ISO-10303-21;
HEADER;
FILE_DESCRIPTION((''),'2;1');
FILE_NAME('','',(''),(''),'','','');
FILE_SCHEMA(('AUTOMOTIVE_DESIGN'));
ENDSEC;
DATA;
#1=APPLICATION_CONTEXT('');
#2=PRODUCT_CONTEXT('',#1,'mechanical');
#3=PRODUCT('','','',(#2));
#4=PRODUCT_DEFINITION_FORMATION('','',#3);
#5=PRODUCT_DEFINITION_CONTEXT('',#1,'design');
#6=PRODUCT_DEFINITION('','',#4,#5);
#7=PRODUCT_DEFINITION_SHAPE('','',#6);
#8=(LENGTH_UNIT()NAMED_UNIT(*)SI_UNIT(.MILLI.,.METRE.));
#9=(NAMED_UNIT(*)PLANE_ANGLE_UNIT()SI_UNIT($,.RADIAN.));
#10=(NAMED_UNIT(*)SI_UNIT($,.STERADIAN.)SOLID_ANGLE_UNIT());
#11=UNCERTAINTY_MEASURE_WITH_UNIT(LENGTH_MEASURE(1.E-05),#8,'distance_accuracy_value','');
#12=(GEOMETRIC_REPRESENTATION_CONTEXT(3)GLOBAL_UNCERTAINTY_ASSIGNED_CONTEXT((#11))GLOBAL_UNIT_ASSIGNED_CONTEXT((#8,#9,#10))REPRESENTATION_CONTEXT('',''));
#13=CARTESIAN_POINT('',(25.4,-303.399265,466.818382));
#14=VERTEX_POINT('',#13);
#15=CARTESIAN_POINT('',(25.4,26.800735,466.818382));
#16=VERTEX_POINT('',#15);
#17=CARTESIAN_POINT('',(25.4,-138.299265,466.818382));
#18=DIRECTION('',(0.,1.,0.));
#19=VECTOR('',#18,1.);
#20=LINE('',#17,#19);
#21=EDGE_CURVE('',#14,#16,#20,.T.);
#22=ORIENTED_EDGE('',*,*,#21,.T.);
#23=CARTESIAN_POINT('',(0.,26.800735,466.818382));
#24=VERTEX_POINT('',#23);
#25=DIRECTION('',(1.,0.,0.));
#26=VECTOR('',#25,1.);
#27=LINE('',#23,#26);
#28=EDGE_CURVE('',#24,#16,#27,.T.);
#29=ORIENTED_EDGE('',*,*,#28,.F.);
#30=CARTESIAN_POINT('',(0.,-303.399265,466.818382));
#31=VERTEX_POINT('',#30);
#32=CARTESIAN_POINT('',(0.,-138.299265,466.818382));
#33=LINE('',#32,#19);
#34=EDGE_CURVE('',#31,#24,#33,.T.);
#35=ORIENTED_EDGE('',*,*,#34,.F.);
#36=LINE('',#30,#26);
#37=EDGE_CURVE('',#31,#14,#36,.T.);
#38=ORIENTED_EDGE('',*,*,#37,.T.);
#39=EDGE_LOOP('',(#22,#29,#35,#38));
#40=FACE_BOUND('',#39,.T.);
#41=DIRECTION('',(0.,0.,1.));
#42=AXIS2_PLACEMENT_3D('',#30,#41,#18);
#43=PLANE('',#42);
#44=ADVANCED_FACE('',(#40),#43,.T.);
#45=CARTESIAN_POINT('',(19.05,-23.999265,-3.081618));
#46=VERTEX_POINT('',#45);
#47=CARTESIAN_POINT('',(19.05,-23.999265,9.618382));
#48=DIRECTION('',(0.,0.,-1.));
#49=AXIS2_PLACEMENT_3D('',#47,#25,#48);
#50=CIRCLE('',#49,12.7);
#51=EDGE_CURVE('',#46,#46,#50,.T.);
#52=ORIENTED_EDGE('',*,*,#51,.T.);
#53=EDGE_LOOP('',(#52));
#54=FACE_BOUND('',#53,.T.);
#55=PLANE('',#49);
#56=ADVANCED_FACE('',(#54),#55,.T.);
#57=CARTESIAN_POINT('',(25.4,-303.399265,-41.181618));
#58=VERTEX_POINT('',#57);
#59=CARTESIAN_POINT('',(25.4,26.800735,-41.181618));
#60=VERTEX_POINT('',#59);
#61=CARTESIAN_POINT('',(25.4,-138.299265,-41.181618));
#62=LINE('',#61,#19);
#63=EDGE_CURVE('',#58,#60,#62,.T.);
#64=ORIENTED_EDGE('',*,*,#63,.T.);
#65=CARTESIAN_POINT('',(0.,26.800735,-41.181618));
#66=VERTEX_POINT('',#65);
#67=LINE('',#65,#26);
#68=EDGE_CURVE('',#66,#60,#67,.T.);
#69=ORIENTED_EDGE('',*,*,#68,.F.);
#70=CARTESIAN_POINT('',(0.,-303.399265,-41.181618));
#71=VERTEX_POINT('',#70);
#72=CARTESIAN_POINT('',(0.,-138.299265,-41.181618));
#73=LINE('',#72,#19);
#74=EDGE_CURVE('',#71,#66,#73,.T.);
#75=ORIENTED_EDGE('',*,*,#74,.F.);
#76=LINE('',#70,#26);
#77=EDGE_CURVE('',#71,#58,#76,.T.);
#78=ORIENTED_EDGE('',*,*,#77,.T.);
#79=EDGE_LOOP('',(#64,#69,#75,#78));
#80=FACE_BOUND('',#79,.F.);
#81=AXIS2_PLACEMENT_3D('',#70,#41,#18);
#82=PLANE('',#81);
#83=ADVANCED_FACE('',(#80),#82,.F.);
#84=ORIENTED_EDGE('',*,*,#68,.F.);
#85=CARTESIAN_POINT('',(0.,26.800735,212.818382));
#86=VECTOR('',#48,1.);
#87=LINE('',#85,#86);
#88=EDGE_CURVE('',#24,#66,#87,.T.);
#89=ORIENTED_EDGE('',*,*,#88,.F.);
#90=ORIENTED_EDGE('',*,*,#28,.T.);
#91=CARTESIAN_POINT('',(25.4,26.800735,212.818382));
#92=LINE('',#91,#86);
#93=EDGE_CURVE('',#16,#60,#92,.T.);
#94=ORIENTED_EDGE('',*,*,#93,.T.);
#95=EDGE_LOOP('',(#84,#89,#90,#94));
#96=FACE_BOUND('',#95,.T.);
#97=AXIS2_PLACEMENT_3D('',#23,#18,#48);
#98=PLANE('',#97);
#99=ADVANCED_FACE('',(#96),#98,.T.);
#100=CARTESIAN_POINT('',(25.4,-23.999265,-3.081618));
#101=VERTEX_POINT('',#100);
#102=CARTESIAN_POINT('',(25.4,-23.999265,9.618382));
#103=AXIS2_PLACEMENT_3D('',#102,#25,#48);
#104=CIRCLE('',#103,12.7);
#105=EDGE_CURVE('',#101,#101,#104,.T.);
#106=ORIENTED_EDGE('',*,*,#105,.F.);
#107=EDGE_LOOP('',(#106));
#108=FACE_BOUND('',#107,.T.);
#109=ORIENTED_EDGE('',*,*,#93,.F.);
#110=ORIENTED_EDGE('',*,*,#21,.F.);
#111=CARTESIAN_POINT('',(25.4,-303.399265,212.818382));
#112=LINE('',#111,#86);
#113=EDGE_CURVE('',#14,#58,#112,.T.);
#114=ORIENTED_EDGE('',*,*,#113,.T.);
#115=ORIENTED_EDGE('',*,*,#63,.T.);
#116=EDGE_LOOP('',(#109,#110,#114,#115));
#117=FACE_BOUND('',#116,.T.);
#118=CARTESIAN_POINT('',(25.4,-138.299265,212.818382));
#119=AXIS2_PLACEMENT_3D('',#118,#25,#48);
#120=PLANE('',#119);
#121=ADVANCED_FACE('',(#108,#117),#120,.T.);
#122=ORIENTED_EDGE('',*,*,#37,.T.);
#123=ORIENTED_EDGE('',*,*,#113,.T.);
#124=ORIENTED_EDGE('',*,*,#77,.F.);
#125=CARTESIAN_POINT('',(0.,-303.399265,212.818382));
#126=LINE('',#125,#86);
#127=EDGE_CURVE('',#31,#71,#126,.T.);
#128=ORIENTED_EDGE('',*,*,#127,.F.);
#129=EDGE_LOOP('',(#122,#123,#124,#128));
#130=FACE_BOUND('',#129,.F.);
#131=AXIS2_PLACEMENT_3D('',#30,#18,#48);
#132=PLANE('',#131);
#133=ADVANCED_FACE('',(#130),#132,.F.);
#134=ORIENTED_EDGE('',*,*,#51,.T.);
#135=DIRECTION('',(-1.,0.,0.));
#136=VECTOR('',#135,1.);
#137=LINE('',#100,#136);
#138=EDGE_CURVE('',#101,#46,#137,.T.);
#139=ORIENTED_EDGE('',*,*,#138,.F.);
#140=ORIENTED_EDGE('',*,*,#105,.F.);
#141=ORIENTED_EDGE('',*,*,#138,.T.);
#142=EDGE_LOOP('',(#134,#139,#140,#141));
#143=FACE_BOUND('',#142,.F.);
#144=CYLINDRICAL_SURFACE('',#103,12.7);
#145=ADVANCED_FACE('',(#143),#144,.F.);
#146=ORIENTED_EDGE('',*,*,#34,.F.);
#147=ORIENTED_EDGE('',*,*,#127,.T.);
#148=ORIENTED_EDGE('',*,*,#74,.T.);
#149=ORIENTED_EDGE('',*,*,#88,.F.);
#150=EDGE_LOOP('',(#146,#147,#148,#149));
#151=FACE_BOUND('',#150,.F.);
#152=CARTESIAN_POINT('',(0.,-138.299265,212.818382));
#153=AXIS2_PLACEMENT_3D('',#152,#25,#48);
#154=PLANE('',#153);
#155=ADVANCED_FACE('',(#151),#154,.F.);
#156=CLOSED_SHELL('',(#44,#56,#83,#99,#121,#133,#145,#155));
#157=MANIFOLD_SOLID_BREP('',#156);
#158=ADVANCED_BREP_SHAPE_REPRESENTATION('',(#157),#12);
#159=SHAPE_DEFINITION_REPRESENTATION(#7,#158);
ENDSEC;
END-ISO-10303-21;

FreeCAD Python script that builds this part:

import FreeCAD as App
import Part
import Sketcher
from FreeCAD import Vector
Q = App.Units.Quantity

doc = App.newDocument("Part")
params = doc.addObject("Spreadsheet::Sheet", "Params")
for row, (alias, value) in enumerate([
    ("sketch1_width", "13 in"),
    ("sketch1_height", "20 in"),
    ("pad1_length", "1 in"),
    ("sketch2_diameter", "1 in"),
    ("pocket1_length", "0.25 in"),
], start=1):
    params.set(f"A{row}", alias)
    params.set(f"B{row}", "=" + value)
    params.setAlias(f"B{row}", alias)

body = doc.addObject("PartDesign::Body", "Body")

# Sketch on YZ plane
sketch1 = doc.addObject("Sketcher::SketchObject", "Sketch")
body.addObject(sketch1)
sketch1.AttachmentSupport = (doc.YZ_Plane, [""])
sketch1.MapMode = "FlatFace"
sketch1.addGeometry([
    Part.LineSegment(Vector(26.800735, 466.818382, 0), Vector(-303.399265, 466.818382, 0)),
    Part.LineSegment(Vector(-303.399265, 466.818382, 0), Vector(-303.399265, -41.181618, 0)),
    Part.LineSegment(Vector(-303.399265, -41.181618, 0), Vector(26.800735, -41.181618, 0)),
    Part.LineSegment(Vector(26.800735, -41.181618, 0), Vector(26.800735, 466.818382, 0)),
], False)
sketch1.addConstraint([
    Sketcher.Constraint("Coincident", 0, 2, 1, 1),
    Sketcher.Constraint("Coincident", 1, 2, 2, 1),
    Sketcher.Constraint("Coincident", 2, 2, 3, 1),
    Sketcher.Constraint("Coincident", 3, 2, 0, 1),
    Sketcher.Constraint("Horizontal", 0),
    Sketcher.Constraint("Vertical", 1),
    Sketcher.Constraint("Horizontal", 2),
    Sketcher.Constraint("Vertical", 3),
    Sketcher.Constraint("DistanceX", 0, 2, 0, 1, Q("13 in")),
    Sketcher.Constraint("DistanceY", 1, 2, 1, 1, Q("20 in")),
    Sketcher.Constraint("DistanceX", 0, 2, -1, 1, Q("303.399265 mm")),
    Sketcher.Constraint("DistanceY", -1, 1, 0, 2, Q("466.818382 mm")),
])
sketch1.setExpression("Constraints[8]", "Params.sketch1_width")
sketch1.setExpression("Constraints[9]", "Params.sketch1_height")
pad1 = doc.addObject("PartDesign::Pad", "Pad")
body.addObject(pad1)
pad1.Profile = sketch1
pad1.setExpression("Length", "Params.pad1_length")

# Sketch on YZ plane
sketch2 = doc.addObject("Sketcher::SketchObject", "Sketch001")
body.addObject(sketch2)
sketch2.AttachmentSupport = (doc.YZ_Plane, [""])
sketch2.MapMode = "FlatFace"
sketch2.AttachmentOffset = App.Placement(Vector(0, 0, 1 * 25.4), App.Rotation())
sketch2.addGeometry(Part.Circle(Vector(-23.999265, 9.618382, 0), Vector(0, 0, 1), 12.7), False)
sketch2.addConstraint([
    Sketcher.Constraint("Diameter", 0, Q("1 in")),
    Sketcher.Constraint("DistanceX", 0, 3, -1, 1, Q("23.999265 mm")),
    Sketcher.Constraint("DistanceY", -1, 1, 0, 3, Q("9.618382 mm")),
])
sketch2.setExpression("Constraints[0]", "Params.sketch2_diameter")
pocket1 = doc.addObject("PartDesign::Pocket", "Pocket")
body.addObject(pocket1)
pocket1.Profile = sketch2
pocket1.setExpression("Length", "Params.pocket1_length")

doc.recompute()
